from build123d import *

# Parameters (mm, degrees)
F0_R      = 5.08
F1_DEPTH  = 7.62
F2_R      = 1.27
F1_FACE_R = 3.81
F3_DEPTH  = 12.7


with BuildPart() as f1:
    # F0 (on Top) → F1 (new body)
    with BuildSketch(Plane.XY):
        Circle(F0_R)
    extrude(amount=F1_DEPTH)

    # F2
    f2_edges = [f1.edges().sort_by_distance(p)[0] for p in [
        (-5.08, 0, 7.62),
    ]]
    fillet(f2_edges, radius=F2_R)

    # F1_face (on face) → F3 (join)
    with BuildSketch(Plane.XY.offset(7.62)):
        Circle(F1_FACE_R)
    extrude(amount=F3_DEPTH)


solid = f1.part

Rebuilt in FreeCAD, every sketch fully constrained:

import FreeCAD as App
import Part
import Sketcher
from FreeCAD import Vector
Q = App.Units.Quantity


def edges_at(feature, points):
    """Names of the edges that pass closest to the given points."""
    edges = feature.Shape.Edges
    near = lambda p: min(range(len(edges)), key=lambda i: edges[i].distToShape(Part.Vertex(*p))[0])
    return sorted({f"Edge{near(p) + 1}" for p in points})

doc = App.newDocument("Part")
body = doc.addObject("PartDesign::Body", "Body")

# Sketch on XY plane
sketch1 = body.newObject("Sketcher::SketchObject", "Sketch")
sketch1.AttachmentSupport = (doc.getObject("XY_Plane"), [""])
sketch1.MapMode = "FlatFace"
sketch1.addGeometry(Part.Circle(Vector(0, 0, 0), Vector(0, 0, 1), 5), False)
sketch1.addConstraint([
    Sketcher.Constraint("Coincident", 0, 3, -1, 1),
    Sketcher.Constraint("Diameter", 0, Q("0.4 in")),
])
pad1 = body.newObject("PartDesign::Pad", "Pad")
pad1.Profile = sketch1
pad1.Length = Q("0.3 in")
doc.recompute()

fillet = body.newObject("PartDesign::Fillet", "Fillet")
fillet.Base = (pad1, edges_at(pad1, [(-5.08, 0, 7.62)]))
fillet.Radius = Q("0.05 in")

# Sketch on XY plane
sketch2 = body.newObject("Sketcher::SketchObject", "Sketch001")
sketch2.AttachmentSupport = (doc.getObject("XY_Plane"), [""])
sketch2.MapMode = "FlatFace"
sketch2.AttachmentOffset = App.Placement(Vector(0, 0, 0.3 * 25.4), App.Rotation())
sketch2.addGeometry(Part.Circle(Vector(0, 0, 0), Vector(0, 0, 1), 3.8), False)
sketch2.addConstraint([
    Sketcher.Constraint("Coincident", 0, 3, -1, 1),
    Sketcher.Constraint("Diameter", 0, Q("0.3 in")),
])
pad2 = body.newObject("PartDesign::Pad", "Pad001")
pad2.Profile = sketch2
pad2.Length = Q("0.5 in")

doc.recompute()
